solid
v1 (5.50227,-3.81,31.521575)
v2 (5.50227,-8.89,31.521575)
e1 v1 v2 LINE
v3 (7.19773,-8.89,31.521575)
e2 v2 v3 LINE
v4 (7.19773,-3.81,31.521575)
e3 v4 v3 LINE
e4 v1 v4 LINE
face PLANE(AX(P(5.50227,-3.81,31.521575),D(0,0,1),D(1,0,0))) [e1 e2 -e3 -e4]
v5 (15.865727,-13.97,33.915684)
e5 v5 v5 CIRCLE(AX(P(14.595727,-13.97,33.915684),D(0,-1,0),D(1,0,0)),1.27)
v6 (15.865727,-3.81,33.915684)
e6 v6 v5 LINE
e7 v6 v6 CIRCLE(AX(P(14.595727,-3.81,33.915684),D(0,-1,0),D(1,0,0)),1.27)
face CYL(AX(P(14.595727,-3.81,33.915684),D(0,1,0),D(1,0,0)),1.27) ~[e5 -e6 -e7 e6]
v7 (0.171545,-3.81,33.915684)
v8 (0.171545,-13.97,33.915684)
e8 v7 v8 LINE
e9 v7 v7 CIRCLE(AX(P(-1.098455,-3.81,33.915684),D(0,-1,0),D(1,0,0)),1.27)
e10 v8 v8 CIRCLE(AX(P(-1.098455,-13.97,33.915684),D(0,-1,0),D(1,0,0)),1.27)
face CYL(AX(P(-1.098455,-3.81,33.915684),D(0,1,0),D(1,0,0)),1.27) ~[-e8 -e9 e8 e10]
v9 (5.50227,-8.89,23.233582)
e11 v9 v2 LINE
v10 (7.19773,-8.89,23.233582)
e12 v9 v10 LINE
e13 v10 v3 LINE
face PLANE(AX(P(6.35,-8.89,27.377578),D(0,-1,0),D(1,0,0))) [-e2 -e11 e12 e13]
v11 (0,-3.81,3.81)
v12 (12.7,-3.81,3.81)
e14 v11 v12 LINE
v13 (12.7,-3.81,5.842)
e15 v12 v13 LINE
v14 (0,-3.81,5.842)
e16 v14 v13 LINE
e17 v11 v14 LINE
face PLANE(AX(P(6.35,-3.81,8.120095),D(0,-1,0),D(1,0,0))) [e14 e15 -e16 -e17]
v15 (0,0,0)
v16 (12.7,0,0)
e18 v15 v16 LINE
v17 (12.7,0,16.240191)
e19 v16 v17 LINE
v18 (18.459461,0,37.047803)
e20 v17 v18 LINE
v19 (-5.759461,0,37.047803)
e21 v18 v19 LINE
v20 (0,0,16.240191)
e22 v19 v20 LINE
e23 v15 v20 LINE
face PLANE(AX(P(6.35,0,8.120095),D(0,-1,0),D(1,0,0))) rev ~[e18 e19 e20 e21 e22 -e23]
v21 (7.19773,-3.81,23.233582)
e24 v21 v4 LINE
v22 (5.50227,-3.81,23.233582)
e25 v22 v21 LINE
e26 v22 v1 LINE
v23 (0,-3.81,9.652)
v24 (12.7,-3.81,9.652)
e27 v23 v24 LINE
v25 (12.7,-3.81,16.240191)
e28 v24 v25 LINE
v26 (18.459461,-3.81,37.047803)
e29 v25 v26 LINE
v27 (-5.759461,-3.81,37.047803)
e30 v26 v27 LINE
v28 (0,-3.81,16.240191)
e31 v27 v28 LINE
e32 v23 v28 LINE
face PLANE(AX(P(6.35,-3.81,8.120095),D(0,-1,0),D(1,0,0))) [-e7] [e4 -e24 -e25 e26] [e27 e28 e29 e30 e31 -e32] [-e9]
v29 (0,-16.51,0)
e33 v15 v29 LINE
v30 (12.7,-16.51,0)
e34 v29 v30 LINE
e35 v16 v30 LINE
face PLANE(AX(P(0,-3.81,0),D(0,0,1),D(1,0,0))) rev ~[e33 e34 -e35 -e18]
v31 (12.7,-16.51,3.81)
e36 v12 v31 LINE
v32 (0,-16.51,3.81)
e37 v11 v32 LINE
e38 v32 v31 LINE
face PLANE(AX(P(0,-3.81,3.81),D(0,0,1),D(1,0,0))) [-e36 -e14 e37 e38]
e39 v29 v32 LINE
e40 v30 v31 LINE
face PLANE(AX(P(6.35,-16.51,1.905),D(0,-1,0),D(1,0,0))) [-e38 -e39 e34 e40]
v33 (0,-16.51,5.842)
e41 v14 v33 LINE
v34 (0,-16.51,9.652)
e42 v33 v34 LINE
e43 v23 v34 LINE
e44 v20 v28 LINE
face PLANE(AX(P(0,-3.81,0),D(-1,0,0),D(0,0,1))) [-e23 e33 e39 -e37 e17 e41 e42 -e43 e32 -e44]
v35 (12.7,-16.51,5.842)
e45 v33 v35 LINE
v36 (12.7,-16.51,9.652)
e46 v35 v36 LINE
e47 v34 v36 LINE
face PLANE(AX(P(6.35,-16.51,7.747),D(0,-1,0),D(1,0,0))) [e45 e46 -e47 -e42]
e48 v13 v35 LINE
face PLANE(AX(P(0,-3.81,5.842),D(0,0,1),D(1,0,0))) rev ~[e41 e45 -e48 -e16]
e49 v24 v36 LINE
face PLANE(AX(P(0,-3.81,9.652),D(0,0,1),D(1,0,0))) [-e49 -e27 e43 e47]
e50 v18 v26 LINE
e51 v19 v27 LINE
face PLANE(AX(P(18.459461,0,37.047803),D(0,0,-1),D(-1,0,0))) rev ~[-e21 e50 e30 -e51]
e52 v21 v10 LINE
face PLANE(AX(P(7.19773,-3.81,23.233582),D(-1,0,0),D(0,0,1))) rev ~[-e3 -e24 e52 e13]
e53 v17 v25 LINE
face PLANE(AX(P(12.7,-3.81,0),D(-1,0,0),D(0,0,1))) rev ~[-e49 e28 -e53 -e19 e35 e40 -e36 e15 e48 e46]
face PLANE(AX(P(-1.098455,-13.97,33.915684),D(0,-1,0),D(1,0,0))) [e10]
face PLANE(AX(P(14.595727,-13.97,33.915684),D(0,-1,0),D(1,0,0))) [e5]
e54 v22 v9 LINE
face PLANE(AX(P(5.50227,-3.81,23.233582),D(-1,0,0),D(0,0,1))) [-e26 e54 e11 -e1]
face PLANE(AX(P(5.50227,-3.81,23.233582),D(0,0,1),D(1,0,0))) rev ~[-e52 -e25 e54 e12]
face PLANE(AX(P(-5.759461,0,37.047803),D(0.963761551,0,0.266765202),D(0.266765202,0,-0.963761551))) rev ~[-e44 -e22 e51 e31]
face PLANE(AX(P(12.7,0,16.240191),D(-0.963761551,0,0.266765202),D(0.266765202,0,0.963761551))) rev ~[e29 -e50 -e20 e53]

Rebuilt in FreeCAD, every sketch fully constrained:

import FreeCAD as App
import Part
import Sketcher
Q = App.Units.Quantity

doc = App.newDocument("Part")
body = doc.addObject("PartDesign::Body", "Body")

# Sketch on XZ plane
sketch1 = body.newObject("Sketcher::SketchObject", "Sketch")
sketch1.AttachmentSupport = (doc.getObject("XZ_Plane"), [""])
sketch1.MapMode = "FlatFace"
sketch1.addGeometry([
    Part.LineSegment(App.Vector(0, 16.240191, 0), App.Vector(0, 0, 0)),  # 0
    Part.LineSegment(App.Vector(0, 0, 0), App.Vector(12.7, 0, 0)),  # 1
    Part.LineSegment(App.Vector(12.7, 0, 0), App.Vector(12.7, 16.240191, 0)),  # 2
    Part.LineSegment(App.Vector(12.7, 16.240191, 0), App.Vector(18.459461, 37.047803, 0)),  # 3
    Part.LineSegment(App.Vector(18.459461, 37.047803, 0), App.Vector(-5.759461, 37.047803, 0)),  # 4
    Part.LineSegment(App.Vector(-5.759461, 37.047803, 0), App.Vector(0, 16.240191, 0)),  # 5
], False)
sketch1.addConstraint([
    Sketcher.Constraint("Coincident", 0, 2, 1, 1),
    Sketcher.Constraint("Coincident", 1, 2, 2, 1),
    Sketcher.Constraint("Coincident", 2, 2, 3, 1),
    Sketcher.Constraint("Coincident", 3, 2, 4, 1),
    Sketcher.Constraint("Coincident", 4, 2, 5, 1),
    Sketcher.Constraint("Coincident", 5, 2, 0, 1),
    Sketcher.Constraint("Vertical", 0),
    Sketcher.Constraint("Horizontal", 1),
    Sketcher.Constraint("Vertical", 2),
    Sketcher.Constraint("Horizontal", 4),
    Sketcher.Constraint("Coincident", 0, 2, -1, 1),
    Sketcher.Constraint("Horizontal", 2, 2, 5, 2),
    Sketcher.Constraint("Equal", 3, 5),
    Sketcher.Constraint("DistanceX", 1, 1, 1, 2, Q("0.5 in")),
    Sketcher.Constraint("Distance", 3, Q("0.85 in")),
    Sketcher.Constraint("DistanceX", 4, 2, 4, 1, 24.218921),
    Sketcher.Constraint("DistanceY", 0, 2, 0, 1, 16.240191),
])
pad1 = body.newObject("PartDesign::Pad", "Pad")
pad1.Profile = sketch1
pad1.Length = Q("0.15 in")

# Sketch on XZ plane
sketch2 = body.newObject("Sketcher::SketchObject", "Sketch001")
sketch2.AttachmentSupport = (doc.getObject("XZ_Plane"), [""])
sketch2.MapMode = "FlatFace"
sketch2.AttachmentOffset = App.Placement(App.Vector(0, 0, 0.15 * 25.4), App.Rotation())
sketch2.addGeometry([
    Part.LineSegment(App.Vector(0, 3.81, 0), App.Vector(0, 0, 0)),  # 0
    Part.LineSegment(App.Vector(0, 0, 0), App.Vector(12.7, 0, 0)),  # 1
    Part.LineSegment(App.Vector(12.7, 0, 0), App.Vector(12.7, 3.81, 0)),  # 2
    Part.LineSegment(App.Vector(12.7, 3.81, 0), App.Vector(0, 3.81, 0)),  # 3
    Part.LineSegment(App.Vector(0, 9.652, 0), App.Vector(0, 5.842, 0)),  # 4
    Part.LineSegment(App.Vector(0, 5.842, 0), App.Vector(12.7, 5.842, 0)),  # 5
    Part.LineSegment(App.Vector(12.7, 5.842, 0), App.Vector(12.7, 9.652, 0)),  # 6
    Part.LineSegment(App.Vector(12.7, 9.652, 0), App.Vector(0, 9.652, 0)),  # 7
], False)
sketch2.addConstraint([
    Sketcher.Constraint("Coincident", 0, 2, 1, 1),
    Sketcher.Constraint("Coincident", 1, 2, 2, 1),
    Sketcher.Constraint("Coincident", 2, 2, 3, 1),
    Sketcher.Constraint("Coincident", 3, 2, 0, 1),
    Sketcher.Constraint("Coincident", 4, 2, 5, 1),
    Sketcher.Constraint("Coincident", 5, 2, 6, 1),
    Sketcher.Constraint("Coincident", 6, 2, 7, 1),
    Sketcher.Constraint("Coincident", 7, 2, 4, 1),
    Sketcher.Constraint("Vertical", 0),
    Sketcher.Constraint("Horizontal", 1),
    Sketcher.Constraint("Vertical", 2),
    Sketcher.Constraint("Horizontal", 3),
    Sketcher.Constraint("Vertical", 4),
    Sketcher.Constraint("Horizontal", 5),
    Sketcher.Constraint("Vertical", 6),
    Sketcher.Constraint("Horizontal", 7),
    Sketcher.Constraint("Coincident", 0, 2, -1, 1),
    Sketcher.Constraint("PointOnObject", 4, 2, -2),
    Sketcher.Constraint("Vertical", 2, 2, 5, 2),
    Sketcher.Constraint("Equal", 2, 4),
    Sketcher.Constraint("DistanceX", 1, 1, 1, 2, Q("0.5 in")),
    Sketcher.Constraint("DistanceY", 0, 2, 0, 1, Q("0.15 in")),
    Sketcher.Constraint("DistanceY", -1, 1, 4, 2, Q("0.23 in")),
])
pad2 = body.newObject("PartDesign::Pad", "Pad001")
pad2.Profile = sketch2
pad2.Length = Q("0.5 in")

# Sketch on XZ plane
sketch3 = body.newObject("Sketcher::SketchObject", "Sketch002")
sketch3.AttachmentSupport = (doc.getObject("XZ_Plane"), [""])
sketch3.MapMode = "FlatFace"
sketch3.AttachmentOffset = App.Placement(App.Vector(0, 0, 0.15 * 25.4), App.Rotation())
sketch3.addGeometry([
    Part.Circle(App.Vector(14.595727, 33.915684, 0), App.Vector(0, 0, 1), 1.27),
    Part.Circle(App.Vector(-1.098455, 33.915684, 0), App.Vector(0, 0, 1), 1.27),
], False)
sketch3.addConstraint([
    Sketcher.Constraint("Equal", 0, 1),
    Sketcher.Constraint("Horizontal", 0, 3, 1, 3),
    Sketcher.Constraint("Diameter", 0, Q("0.1 in")),
    Sketcher.Constraint("DistanceX", -1, 1, 0, 3, 14.595727),
    Sketcher.Constraint("DistanceY", -1, 1, 0, 3, 33.915684),
    Sketcher.Constraint("DistanceX", 1, 3, -1, 1, 1.098455),
])
pad3 = body.newObject("PartDesign::Pad", "Pad002")
pad3.Profile = sketch3
pad3.Length = Q("0.4 in")

# Sketch on XZ plane
sketch4 = body.newObject("Sketcher::SketchObject", "Sketch003")
sketch4.AttachmentSupport = (doc.getObject("XZ_Plane"), [""])
sketch4.MapMode = "FlatFace"
sketch4.AttachmentOffset = App.Placement(App.Vector(0, 0, 0.15 * 25.4), App.Rotation())
sketch4.addGeometry([
    Part.LineSegment(App.Vector(5.50227, 31.521575, 0), App.Vector(5.50227, 23.233582, 0)),
    Part.LineSegment(App.Vector(5.50227, 23.233582, 0), App.Vector(7.19773, 23.233582, 0)),
    Part.LineSegment(App.Vector(7.19773, 23.233582, 0), App.Vector(7.19773, 31.521575, 0)),
    Part.LineSegment(App.Vector(7.19773, 31.521575, 0), App.Vector(5.50227, 31.521575, 0)),
], False)
sketch4.addConstraint([
    Sketcher.Constraint("Coincident", 0, 2, 1, 1),
    Sketcher.Constraint("Coincident", 1, 2, 2, 1),
    Sketcher.Constraint("Coincident", 2, 2, 3, 1),
    Sketcher.Constraint("Coincident", 3, 2, 0, 1),
    Sketcher.Constraint("Vertical", 0),
    Sketcher.Constraint("Horizontal", 1),
    Sketcher.Constraint("Vertical", 2),
    Sketcher.Constraint("Horizontal", 3),
    Sketcher.Constraint("DistanceX", 1, 1, 1, 2, 1.695461),
    Sketcher.Constraint("DistanceY", 0, 2, 0, 1, 8.287992),
    Sketcher.Constraint("DistanceX", -1, 1, 0, 2, 5.50227),
    Sketcher.Constraint("DistanceY", -1, 1, 0, 2, 23.233582),
])
pad4 = body.newObject("PartDesign::Pad", "Pad003")
pad4.Profile = sketch4
pad4.Length = Q("0.2 in")

doc.recompute()
